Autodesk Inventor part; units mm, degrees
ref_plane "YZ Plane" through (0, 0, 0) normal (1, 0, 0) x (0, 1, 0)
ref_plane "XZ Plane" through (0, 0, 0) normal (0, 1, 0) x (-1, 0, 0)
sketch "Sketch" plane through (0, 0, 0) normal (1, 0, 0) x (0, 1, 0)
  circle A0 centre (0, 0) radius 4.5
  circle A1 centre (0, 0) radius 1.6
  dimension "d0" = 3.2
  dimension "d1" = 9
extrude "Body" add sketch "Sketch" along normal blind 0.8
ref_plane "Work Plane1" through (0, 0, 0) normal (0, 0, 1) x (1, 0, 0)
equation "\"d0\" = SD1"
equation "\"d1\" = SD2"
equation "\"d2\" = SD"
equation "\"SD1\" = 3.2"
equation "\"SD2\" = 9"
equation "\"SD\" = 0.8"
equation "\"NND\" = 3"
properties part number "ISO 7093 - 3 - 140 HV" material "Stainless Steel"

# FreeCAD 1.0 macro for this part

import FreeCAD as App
import Part
import Sketcher

V = App.Vector

doc = App.newDocument("Part")
body = doc.addObject("PartDesign::Body", "Body")

sketch1 = body.newObject("Sketcher::SketchObject", "Sketch")
sketch1.AttachmentSupport = (doc.getObject("YZ_Plane"), [""])
sketch1.MapMode = "FlatFace"
sketch1.addGeometry(Part.Circle(V(0, 0, 0), V(0, 0, 1), 4.5), False)
sketch1.addGeometry(Part.Circle(V(0, 0, 0), V(0, 0, 1), 1.6), False)
sketch1.addConstraint(Sketcher.Constraint("Coincident", 0, 3, -1, 1))
sketch1.addConstraint(Sketcher.Constraint("Coincident", 1, 3, -1, 1))
sketch1.addConstraint(Sketcher.Constraint("Diameter", 0, 9.0))
sketch1.addConstraint(Sketcher.Constraint("Diameter", 1, 3.2))
pad1 = body.newObject("PartDesign::Pad", "Pad")
pad1.Profile = sketch1
pad1.Length = 0.8

doc.recompute()
